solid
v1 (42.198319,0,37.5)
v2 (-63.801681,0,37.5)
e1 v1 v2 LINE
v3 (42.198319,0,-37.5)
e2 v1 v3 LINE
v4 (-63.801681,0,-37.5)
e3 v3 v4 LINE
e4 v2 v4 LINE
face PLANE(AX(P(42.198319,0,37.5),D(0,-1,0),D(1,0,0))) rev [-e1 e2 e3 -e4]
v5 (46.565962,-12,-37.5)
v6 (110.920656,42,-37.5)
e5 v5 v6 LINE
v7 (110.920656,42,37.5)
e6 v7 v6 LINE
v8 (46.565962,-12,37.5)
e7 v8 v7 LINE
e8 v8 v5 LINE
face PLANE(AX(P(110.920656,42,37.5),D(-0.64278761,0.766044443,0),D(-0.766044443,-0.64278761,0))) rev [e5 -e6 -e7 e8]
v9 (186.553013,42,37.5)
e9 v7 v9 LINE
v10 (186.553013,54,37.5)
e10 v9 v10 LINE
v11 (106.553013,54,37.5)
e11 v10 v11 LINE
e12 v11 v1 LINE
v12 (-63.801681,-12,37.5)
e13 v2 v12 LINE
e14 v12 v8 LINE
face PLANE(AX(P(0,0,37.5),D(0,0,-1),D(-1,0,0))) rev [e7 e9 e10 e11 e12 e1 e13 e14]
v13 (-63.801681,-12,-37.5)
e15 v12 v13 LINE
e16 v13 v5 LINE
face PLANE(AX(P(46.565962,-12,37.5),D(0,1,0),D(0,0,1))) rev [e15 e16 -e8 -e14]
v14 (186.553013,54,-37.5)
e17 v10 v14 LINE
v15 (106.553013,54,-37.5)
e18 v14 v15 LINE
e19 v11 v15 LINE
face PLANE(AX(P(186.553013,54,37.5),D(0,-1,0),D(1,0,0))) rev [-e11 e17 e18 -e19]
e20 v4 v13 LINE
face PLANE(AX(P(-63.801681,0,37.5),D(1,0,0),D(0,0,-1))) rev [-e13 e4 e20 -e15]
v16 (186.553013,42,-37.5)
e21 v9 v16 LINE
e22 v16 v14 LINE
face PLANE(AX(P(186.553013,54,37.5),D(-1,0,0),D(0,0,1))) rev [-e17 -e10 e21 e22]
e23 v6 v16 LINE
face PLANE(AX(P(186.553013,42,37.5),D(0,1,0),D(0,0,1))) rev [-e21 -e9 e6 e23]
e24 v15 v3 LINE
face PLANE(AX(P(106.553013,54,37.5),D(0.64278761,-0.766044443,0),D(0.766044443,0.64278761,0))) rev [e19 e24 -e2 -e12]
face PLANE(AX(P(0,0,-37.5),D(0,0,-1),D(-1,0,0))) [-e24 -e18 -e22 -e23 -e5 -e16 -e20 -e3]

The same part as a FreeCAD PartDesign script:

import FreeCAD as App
import Part
import Sketcher
Q = App.Units.Quantity


def add_polygon(sketch, points):
    """Adds a closed chain of lines whose ends are joined by coincident constraints."""
    first, n = sketch.GeometryCount, len(points)
    for a, b in zip(points, points[1:] + points[:1]):
        sketch.addGeometry(Part.LineSegment(App.Vector(*a, 0), App.Vector(*b, 0)), False)
    for i in range(n):
        sketch.addConstraint(Sketcher.Constraint("Coincident", first + i, 2, first + (i + 1) % n, 1))

doc = App.newDocument("Part")
body = doc.addObject("PartDesign::Body", "Body")

sketch1 = body.newObject("Sketcher::SketchObject", "Sketch")
sketch1.AttachmentSupport = (doc.getObject("XY_Plane"), [""])
sketch1.MapMode = "FlatFace"
add_polygon(sketch1, [(187, 54), (107, 54), (42, 0), (-64, 0), (-64, -12), (47, -12), (111, 42), (187, 42)])
sketch1.addConstraint([
    Sketcher.Constraint("Horizontal", 0),
    Sketcher.Constraint("Horizontal", 2),
    Sketcher.Constraint("Vertical", 3),
    Sketcher.Constraint("Horizontal", 4),
    Sketcher.Constraint("Horizontal", 6),
    Sketcher.Constraint("Vertical", 7),
    Sketcher.Constraint("PointOnObject", 1, 2, -1),
    Sketcher.Constraint("Parallel", 1, 5),
    Sketcher.Constraint("Equal", 3, 7),
    Sketcher.Constraint("DistanceX", 0, 2, 0, 1, Q("80 mm")),
    Sketcher.Constraint("DistanceX", 2, 2, 2, 1, Q("106 mm")),
    Sketcher.Constraint("DistanceY", 3, 2, 3, 1, Q("12 mm")),
    Sketcher.Constraint("Angle", 1, Q("-140 deg")),
    Sketcher.Constraint("DistanceY", -1, 1, 0, 2, Q("54 mm")),
    Sketcher.Constraint("DistanceX", 4, 1, 4, 2, Q("110.367643 mm")),
    Sketcher.Constraint("DistanceX", -1, 1, 1, 2, Q("42.198319 mm")),
])
pad1 = body.newObject("PartDesign::Pad", "Pad")
pad1.Profile = sketch1
pad1.Length = 75
pad1.Midplane = True

doc.recompute()
